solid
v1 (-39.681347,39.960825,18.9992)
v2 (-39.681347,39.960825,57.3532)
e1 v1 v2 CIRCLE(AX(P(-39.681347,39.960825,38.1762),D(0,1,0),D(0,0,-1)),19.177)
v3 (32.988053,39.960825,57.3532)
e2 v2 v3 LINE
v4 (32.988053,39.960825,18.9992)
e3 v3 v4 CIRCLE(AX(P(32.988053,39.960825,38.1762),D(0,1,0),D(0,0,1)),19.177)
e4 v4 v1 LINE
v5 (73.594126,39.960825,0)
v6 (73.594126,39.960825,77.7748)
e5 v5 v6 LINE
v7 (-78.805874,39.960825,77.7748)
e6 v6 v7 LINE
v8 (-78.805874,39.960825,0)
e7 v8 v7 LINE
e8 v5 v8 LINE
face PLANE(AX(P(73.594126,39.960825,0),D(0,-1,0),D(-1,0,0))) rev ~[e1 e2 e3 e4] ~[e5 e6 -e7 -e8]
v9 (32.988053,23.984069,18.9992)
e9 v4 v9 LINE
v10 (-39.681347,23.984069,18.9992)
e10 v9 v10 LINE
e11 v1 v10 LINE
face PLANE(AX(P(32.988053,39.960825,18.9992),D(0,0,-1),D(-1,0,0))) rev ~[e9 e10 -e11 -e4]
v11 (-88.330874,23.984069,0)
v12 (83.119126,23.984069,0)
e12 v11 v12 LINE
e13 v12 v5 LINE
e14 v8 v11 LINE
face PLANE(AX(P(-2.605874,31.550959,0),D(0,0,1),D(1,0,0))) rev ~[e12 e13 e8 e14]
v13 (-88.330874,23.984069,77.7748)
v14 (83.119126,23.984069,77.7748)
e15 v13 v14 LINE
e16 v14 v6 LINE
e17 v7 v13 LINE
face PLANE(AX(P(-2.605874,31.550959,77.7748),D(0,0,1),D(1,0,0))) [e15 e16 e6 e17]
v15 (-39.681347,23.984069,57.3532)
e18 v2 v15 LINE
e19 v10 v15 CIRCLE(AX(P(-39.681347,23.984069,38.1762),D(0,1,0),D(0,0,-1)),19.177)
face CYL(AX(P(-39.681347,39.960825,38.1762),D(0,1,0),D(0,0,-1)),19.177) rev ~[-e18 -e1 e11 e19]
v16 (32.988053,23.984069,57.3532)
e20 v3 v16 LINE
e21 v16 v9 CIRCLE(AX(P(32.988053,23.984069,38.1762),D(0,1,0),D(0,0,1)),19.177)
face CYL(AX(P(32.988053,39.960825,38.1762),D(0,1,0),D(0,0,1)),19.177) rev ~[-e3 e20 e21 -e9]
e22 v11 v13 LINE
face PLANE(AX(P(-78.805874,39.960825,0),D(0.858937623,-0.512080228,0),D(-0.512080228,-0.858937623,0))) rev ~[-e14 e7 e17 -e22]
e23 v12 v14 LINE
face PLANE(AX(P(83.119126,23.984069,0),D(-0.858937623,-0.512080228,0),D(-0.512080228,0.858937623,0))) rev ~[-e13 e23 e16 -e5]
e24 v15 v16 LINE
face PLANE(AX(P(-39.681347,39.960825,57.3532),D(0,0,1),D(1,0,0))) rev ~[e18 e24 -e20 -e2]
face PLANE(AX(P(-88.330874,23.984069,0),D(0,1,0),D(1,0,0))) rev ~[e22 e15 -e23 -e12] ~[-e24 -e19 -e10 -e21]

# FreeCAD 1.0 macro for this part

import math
import FreeCAD as App
import Part
import Sketcher
Q = App.Units.Quantity


def add_polygon(sketch, points):
    """Adds a closed chain of lines whose ends are joined by coincident constraints."""
    first, n = sketch.GeometryCount, len(points)
    for a, b in zip(points, points[1:] + points[:1]):
        sketch.addGeometry(Part.LineSegment(App.Vector(*a, 0), App.Vector(*b, 0)), False)
    for i in range(n):
        sketch.addConstraint(Sketcher.Constraint("Coincident", first + i, 2, first + (i + 1) % n, 1))

doc = App.newDocument("Part")
body = doc.addObject("PartDesign::Body", "Body")

sketch1 = doc.addObject("Sketcher::SketchObject", "Sketch")
body.addObject(sketch1)
sketch1.AttachmentSupport = (doc.XY_Plane, [""])
sketch1.MapMode = "FlatFace"
add_polygon(sketch1, [(74, 40), (-79, 40), (-88, 24), (83, 24)])
sketch1.addConstraint([
    Sketcher.Constraint("Horizontal", 0),
    Sketcher.Constraint("Horizontal", 2),
    Sketcher.Constraint("Equal", 1, 3),
    Sketcher.Constraint("DistanceX", 0, 2, 0, 1, Q("6 in")),
    Sketcher.Constraint("DistanceX", 2, 1, 2, 2, Q("6.75 in")),
    Sketcher.Constraint("Distance", 1, Q("18.600601 mm")),
    Sketcher.Constraint("DistanceY", -1, 1, 1, 2, Q("23.984069 mm")),
    Sketcher.Constraint("DistanceX", 0, 2, -1, 1, Q("78.805874 mm")),
])
pad1 = doc.addObject("PartDesign::Pad", "Pad")
body.addObject(pad1)
pad1.Profile = sketch1
pad1.Length = Q("3.062 in")

sketch2 = doc.addObject("Sketcher::SketchObject", "Sketch001")
body.addObject(sketch2)
sketch2.AttachmentSupport = (doc.XZ_Plane, [""])
sketch2.MapMode = "FlatFace"
sketch2.AttachmentOffset = App.Placement(App.Vector(0, 0, -39.960825), App.Rotation())
sketch2.addGeometry([
    Part.LineSegment(App.Vector(-40, 57, 0), App.Vector(33, 57, 0)),
    Part.ArcOfCircle(Part.Circle(App.Vector(33, 38, 0), App.Vector(0, 0, 1), 19), math.radians(-90), math.radians(90)),
    Part.LineSegment(App.Vector(33, 19, 0), App.Vector(-40, 19, 0)),
    Part.ArcOfCircle(Part.Circle(App.Vector(-40, 38, 0), App.Vector(0, 0, 1), 19), math.radians(90), math.radians(270)),
], False)
sketch2.addConstraint([
    Sketcher.Constraint("Tangent", 0, 2, 1, 2),
    Sketcher.Constraint("Tangent", 1, 1, 2, 1),
    Sketcher.Constraint("Tangent", 2, 2, 3, 2),
    Sketcher.Constraint("Tangent", 3, 1, 0, 1),
    Sketcher.Constraint("Horizontal", 0),
    Sketcher.Constraint("Horizontal", 2),
    Sketcher.Constraint("Radius", 1, Q("0.755 in")),
    Sketcher.Constraint("DistanceX", 0, 1, 0, 2, Q("2.861 in")),
    Sketcher.Constraint("DistanceY", -1, 1, 1, 3, Q("1.503 in")),
    Sketcher.Constraint("DistanceX", -1, 1, 1, 3, Q("32.988053 mm")),
])
pocket1 = doc.addObject("PartDesign::Pocket", "Pocket")
body.addObject(pocket1)
pocket1.Profile = sketch2
pocket1.Length = Q("1 in")
pocket1.Reversed = True

doc.recompute()
